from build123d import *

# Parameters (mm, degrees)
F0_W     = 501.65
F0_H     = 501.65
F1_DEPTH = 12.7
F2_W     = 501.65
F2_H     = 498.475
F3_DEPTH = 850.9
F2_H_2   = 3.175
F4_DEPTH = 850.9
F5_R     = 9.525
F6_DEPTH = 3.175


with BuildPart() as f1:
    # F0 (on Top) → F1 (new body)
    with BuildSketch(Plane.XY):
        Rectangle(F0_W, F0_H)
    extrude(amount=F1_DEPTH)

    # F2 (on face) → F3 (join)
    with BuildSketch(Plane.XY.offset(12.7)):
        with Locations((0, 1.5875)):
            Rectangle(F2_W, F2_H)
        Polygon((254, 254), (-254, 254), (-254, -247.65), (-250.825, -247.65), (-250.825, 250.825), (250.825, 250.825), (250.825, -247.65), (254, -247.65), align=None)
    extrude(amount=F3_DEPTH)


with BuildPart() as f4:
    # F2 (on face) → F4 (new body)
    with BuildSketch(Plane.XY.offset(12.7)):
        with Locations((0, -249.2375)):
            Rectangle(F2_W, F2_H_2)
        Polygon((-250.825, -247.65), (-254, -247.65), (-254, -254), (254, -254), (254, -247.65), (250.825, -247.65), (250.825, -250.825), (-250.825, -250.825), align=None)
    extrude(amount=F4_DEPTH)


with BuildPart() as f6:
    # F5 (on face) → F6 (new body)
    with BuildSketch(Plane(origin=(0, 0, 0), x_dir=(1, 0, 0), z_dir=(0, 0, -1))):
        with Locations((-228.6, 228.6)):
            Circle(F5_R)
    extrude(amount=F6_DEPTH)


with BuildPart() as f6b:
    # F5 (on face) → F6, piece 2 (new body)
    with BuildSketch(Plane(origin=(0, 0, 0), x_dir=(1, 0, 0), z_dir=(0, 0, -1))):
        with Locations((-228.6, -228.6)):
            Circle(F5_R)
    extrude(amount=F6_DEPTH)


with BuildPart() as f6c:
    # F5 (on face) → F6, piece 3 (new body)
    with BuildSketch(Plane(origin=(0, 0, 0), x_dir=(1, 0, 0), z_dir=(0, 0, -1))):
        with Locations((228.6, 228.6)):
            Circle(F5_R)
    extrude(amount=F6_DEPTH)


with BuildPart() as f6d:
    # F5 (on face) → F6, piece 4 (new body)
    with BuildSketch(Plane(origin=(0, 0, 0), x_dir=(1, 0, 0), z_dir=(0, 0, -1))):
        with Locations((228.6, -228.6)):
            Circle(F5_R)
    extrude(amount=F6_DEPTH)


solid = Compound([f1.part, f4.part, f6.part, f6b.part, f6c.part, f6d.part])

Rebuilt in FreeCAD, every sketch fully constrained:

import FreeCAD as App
import Part
import Sketcher
from FreeCAD import Vector
Q = App.Units.Quantity


def add_polygon(sketch, points):
    """Adds a closed chain of lines whose ends are joined by coincident constraints."""
    first, n = sketch.GeometryCount, len(points)
    for a, b in zip(points, points[1:] + points[:1]):
        sketch.addGeometry(Part.LineSegment(App.Vector(*a, 0), App.Vector(*b, 0)), False)
    for i in range(n):
        sketch.addConstraint(Sketcher.Constraint("Coincident", first + i, 2, first + (i + 1) % n, 1))

doc = App.newDocument("Part")
body = doc.addObject("PartDesign::Body", "Body")

sketch1 = body.newObject("Sketcher::SketchObject", "Sketch")
sketch1.AttachmentSupport = (doc.getObject("XY_Plane"), [""])
sketch1.MapMode = "FlatFace"
add_polygon(sketch1, [(-251, 251), (-251, -251), (251, -251), (251, 251)])
sketch1.addConstraint(Sketcher.Constraint("Vertical", 0))
sketch1.addConstraint(Sketcher.Constraint("Horizontal", 1))
sketch1.addConstraint(Sketcher.Constraint("Vertical", 2))
sketch1.addConstraint(Sketcher.Constraint("Horizontal", 3))
sketch1.addConstraint(Sketcher.Constraint("Symmetric", 0, 2, 2, 2, -1, 1))
sketch1.addConstraint(Sketcher.Constraint("Equal", 3, 0))
sketch1.addConstraint(Sketcher.Constraint("DistanceX", 1, 1, 1, 2, Q("19.75 in")))
pad1 = body.newObject("PartDesign::Pad", "Pad")
pad1.Profile = sketch1
pad1.Length = Q("0.5 in")

sketch2 = body.newObject("Sketcher::SketchObject", "Sketch001")
sketch2.AttachmentSupport = (doc.getObject("XY_Plane"), [""])
sketch2.MapMode = "FlatFace"
sketch2.AttachmentOffset = App.Placement(Vector(0, 0, 0.5 * 25.4), App.Rotation())
add_polygon(sketch2, [(254, -248), (254, 254), (-254, 254), (-254, -248)])
sketch2.addConstraint(Sketcher.Constraint("Vertical", 0))
sketch2.addConstraint(Sketcher.Constraint("Horizontal", 1))
sketch2.addConstraint(Sketcher.Constraint("Vertical", 2))
sketch2.addConstraint(Sketcher.Constraint("Horizontal", 3))
sketch2.addConstraint(Sketcher.Constraint("DistanceX", 1, 2, 1, 1, Q("20 in")))
sketch2.addConstraint(Sketcher.Constraint("DistanceX", -1, 1, 0, 2, Q("10 in")))
sketch2.addConstraint(Sketcher.Constraint("DistanceY", -1, 1, 0, 2, Q("10 in")))
sketch2.addConstraint(Sketcher.Constraint("DistanceY", 0, 1, 0, 2, Q("19.75 in")))
pad2 = body.newObject("PartDesign::Pad", "Pad001")
pad2.Profile = sketch2
pad2.Length = Q("33.5 in")
body2 = doc.addObject("PartDesign::Body", "Body001")

sketch3 = body2.newObject("Sketcher::SketchObject", "Sketch002")
sketch3.AttachmentSupport = (doc.getObject("XY_Plane001"), [""])
sketch3.MapMode = "FlatFace"
sketch3.AttachmentOffset = App.Placement(Vector(0, 0, 0.5 * 25.4), App.Rotation())
add_polygon(sketch3, [(-254, -248), (-254, -254), (254, -254), (254, -248)])
sketch3.addConstraint(Sketcher.Constraint("Vertical", 0))
sketch3.addConstraint(Sketcher.Constraint("Horizontal", 1))
sketch3.addConstraint(Sketcher.Constraint("Vertical", 2))
sketch3.addConstraint(Sketcher.Constraint("Horizontal", 3))
sketch3.addConstraint(Sketcher.Constraint("DistanceX", 1, 1, 1, 2, Q("20 in")))
sketch3.addConstraint(Sketcher.Constraint("DistanceX", 0, 2, -1, 1, Q("10 in")))
sketch3.addConstraint(Sketcher.Constraint("DistanceY", 0, 2, -1, 1, Q("10 in")))
sketch3.addConstraint(Sketcher.Constraint("DistanceY", 0, 2, 0, 1, Q("0.25 in")))
pad3 = body2.newObject("PartDesign::Pad", "Pad002")
pad3.Profile = sketch3
pad3.Length = Q("33.5 in")
body3 = doc.addObject("PartDesign::Body", "Body002")

sketch4 = body3.newObject("Sketcher::SketchObject", "Sketch003")
sketch4.AttachmentSupport = (doc.getObject("XY_Plane002"), [""])
sketch4.MapMode = "FlatFace"
sketch4.addGeometry(Part.Circle(Vector(-229, -229, 0), Vector(0, 0, 1), 10), False)
sketch4.addConstraint(Sketcher.Constraint("Diameter", 0, Q("0.75 in")))
sketch4.addConstraint(Sketcher.Constraint("DistanceX", 0, 3, -1, 1, Q("9 in")))
sketch4.addConstraint(Sketcher.Constraint("DistanceY", 0, 3, -1, 1, Q("9 in")))
pad4 = body3.newObject("PartDesign::Pad", "Pad003")
pad4.Profile = sketch4
pad4.Length = Q("0.125 in")
pad4.Reversed = True
body4 = doc.addObject("PartDesign::Body", "Body003")

sketch5 = body4.newObject("Sketcher::SketchObject", "Sketch004")
sketch5.AttachmentSupport = (doc.getObject("XY_Plane003"), [""])
sketch5.MapMode = "FlatFace"
sketch5.addGeometry(Part.Circle(Vector(-229, 229, 0), Vector(0, 0, 1), 10), False)
sketch5.addConstraint(Sketcher.Constraint("Diameter", 0, Q("0.75 in")))
sketch5.addConstraint(Sketcher.Constraint("DistanceX", 0, 3, -1, 1, Q("9 in")))
sketch5.addConstraint(Sketcher.Constraint("DistanceY", -1, 1, 0, 3, Q("9 in")))
pad5 = body4.newObject("PartDesign::Pad", "Pad004")
pad5.Profile = sketch5
pad5.Length = Q("0.125 in")
pad5.Reversed = True
body5 = doc.addObject("PartDesign::Body", "Body004")

sketch6 = body5.newObject("Sketcher::SketchObject", "Sketch005")
sketch6.AttachmentSupport = (doc.getObject("XY_Plane004"), [""])
sketch6.MapMode = "FlatFace"
sketch6.addGeometry(Part.Circle(Vector(229, -229, 0), Vector(0, 0, 1), 10), False)
sketch6.addConstraint(Sketcher.Constraint("Diameter", 0, Q("0.75 in")))
sketch6.addConstraint(Sketcher.Constraint("DistanceX", -1, 1, 0, 3, Q("9 in")))
sketch6.addConstraint(Sketcher.Constraint("DistanceY", 0, 3, -1, 1, Q("9 in")))
pad6 = body5.newObject("PartDesign::Pad", "Pad005")
pad6.Profile = sketch6
pad6.Length = Q("0.125 in")
pad6.Reversed = True
body6 = doc.addObject("PartDesign::Body", "Body005")

sketch7 = body6.newObject("Sketcher::SketchObject", "Sketch006")
sketch7.AttachmentSupport = (doc.getObject("XY_Plane005"), [""])
sketch7.MapMode = "FlatFace"
sketch7.addGeometry(Part.Circle(Vector(229, 229, 0), Vector(0, 0, 1), 10), False)
sketch7.addConstraint(Sketcher.Constraint("Diameter", 0, Q("0.75 in")))
sketch7.addConstraint(Sketcher.Constraint("DistanceX", -1, 1, 0, 3, Q("9 in")))
sketch7.addConstraint(Sketcher.Constraint("DistanceY", -1, 1, 0, 3, Q("9 in")))
pad7 = body6.newObject("PartDesign::Pad", "Pad006")
pad7.Profile = sketch7
pad7.Length = Q("0.125 in")
pad7.Reversed = True

doc.recompute()
